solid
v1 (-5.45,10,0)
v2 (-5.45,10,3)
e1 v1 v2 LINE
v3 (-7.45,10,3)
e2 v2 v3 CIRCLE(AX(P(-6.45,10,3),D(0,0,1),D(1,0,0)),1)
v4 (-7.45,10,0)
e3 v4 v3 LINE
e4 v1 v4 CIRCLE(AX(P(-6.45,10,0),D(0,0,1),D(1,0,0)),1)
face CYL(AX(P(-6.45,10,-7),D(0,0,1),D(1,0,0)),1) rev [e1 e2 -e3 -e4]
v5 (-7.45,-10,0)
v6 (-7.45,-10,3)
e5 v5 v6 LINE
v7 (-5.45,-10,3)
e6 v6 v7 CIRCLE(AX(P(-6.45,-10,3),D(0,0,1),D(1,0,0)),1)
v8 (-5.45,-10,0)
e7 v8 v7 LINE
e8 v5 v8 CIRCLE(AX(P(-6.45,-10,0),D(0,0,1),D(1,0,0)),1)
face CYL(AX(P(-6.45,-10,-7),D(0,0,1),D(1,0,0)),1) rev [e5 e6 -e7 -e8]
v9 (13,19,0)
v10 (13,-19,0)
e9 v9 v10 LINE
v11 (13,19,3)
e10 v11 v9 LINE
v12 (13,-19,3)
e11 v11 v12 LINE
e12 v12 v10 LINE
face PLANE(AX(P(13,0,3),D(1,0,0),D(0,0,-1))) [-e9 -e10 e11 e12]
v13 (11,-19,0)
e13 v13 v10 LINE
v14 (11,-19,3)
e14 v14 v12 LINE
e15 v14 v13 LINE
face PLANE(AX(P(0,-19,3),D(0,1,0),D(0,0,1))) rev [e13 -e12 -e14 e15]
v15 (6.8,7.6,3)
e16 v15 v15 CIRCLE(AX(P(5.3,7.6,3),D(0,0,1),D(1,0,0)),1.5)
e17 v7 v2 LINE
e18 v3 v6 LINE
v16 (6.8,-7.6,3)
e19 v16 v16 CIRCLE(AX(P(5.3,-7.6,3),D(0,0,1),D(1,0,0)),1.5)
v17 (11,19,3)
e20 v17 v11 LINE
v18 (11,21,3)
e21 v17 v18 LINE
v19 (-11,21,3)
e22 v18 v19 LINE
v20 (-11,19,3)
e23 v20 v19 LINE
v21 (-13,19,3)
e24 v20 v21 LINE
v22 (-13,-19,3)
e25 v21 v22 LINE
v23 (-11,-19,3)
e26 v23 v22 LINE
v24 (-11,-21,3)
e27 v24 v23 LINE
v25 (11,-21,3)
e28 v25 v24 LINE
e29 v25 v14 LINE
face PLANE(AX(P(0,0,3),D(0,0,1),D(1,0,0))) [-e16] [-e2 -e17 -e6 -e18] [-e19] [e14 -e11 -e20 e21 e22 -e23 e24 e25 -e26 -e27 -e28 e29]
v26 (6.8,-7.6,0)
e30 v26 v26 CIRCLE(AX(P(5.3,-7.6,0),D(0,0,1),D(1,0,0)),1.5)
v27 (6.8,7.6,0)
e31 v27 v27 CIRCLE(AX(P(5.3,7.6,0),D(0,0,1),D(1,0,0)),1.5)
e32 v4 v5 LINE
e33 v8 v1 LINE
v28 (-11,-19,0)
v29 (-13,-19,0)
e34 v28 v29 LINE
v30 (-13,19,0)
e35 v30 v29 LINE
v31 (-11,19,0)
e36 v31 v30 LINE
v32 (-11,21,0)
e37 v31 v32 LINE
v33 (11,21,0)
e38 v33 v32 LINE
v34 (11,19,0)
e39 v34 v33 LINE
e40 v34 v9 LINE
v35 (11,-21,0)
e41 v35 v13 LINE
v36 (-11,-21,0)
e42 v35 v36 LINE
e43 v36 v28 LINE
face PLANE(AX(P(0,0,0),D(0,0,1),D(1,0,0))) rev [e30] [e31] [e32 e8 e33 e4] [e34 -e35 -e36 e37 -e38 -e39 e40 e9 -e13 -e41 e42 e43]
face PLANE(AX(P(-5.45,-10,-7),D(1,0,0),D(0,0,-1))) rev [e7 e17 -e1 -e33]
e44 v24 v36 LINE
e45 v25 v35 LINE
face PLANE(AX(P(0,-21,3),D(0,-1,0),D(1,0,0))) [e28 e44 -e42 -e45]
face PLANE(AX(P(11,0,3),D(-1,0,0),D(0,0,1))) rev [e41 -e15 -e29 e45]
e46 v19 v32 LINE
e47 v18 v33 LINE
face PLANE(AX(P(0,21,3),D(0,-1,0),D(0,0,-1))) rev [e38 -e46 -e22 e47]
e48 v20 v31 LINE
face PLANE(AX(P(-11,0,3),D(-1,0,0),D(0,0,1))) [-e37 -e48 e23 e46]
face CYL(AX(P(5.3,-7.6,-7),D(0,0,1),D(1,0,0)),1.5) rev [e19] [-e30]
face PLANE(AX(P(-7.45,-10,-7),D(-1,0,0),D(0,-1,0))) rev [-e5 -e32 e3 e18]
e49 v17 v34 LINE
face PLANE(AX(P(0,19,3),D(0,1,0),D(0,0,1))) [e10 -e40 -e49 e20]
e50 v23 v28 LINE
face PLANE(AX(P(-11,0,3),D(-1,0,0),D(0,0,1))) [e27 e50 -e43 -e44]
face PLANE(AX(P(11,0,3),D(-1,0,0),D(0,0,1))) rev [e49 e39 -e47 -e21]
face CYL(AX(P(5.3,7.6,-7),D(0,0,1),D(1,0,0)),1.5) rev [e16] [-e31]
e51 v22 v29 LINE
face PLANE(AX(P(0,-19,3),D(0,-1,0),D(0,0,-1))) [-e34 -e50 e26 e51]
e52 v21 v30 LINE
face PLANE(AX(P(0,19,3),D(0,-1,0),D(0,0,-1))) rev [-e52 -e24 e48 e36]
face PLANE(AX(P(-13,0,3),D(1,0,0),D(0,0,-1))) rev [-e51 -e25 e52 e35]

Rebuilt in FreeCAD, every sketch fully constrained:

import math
import FreeCAD as App
import Part
import Sketcher
Q = App.Units.Quantity

doc = App.newDocument("Part")
body = doc.addObject("PartDesign::Body", "Body")

# Sketch on XY plane
sketch1 = body.newObject("Sketcher::SketchObject", "Sketch")
sketch1.AttachmentSupport = (doc.getObject("XY_Plane"), [""])
sketch1.MapMode = "FlatFace"
sketch1.addGeometry(Part.LineSegment(App.Vector(-11, -19, 0), App.Vector(-11, -21, 0)), False)
sketch1.addGeometry(Part.LineSegment(App.Vector(-11, -21, 0), App.Vector(11, -21, 0)), False)
sketch1.addGeometry(Part.LineSegment(App.Vector(11, -21, 0), App.Vector(11, -19, 0)), False)
sketch1.addGeometry(Part.LineSegment(App.Vector(11, -19, 0), App.Vector(13, -19, 0)), False)
sketch1.addGeometry(Part.LineSegment(App.Vector(13, -19, 0), App.Vector(13, 19, 0)), False)
sketch1.addGeometry(Part.LineSegment(App.Vector(13, 19, 0), App.Vector(11, 19, 0)), False)
sketch1.addGeometry(Part.LineSegment(App.Vector(11, 19, 0), App.Vector(11, 21, 0)), False)
sketch1.addGeometry(Part.LineSegment(App.Vector(11, 21, 0), App.Vector(-11, 21, 0)), False)
sketch1.addGeometry(Part.LineSegment(App.Vector(-11, 21, 0), App.Vector(-11, 19, 0)), False)
sketch1.addGeometry(Part.LineSegment(App.Vector(-11, 19, 0), App.Vector(-13, 19, 0)), False)
sketch1.addGeometry(Part.LineSegment(App.Vector(-13, 19, 0), App.Vector(-13, -19, 0)), False)
sketch1.addGeometry(Part.LineSegment(App.Vector(-13, -19, 0), App.Vector(-11, -19, 0)), False)
sketch1.addConstraint(Sketcher.Constraint("Coincident", 0, 2, 1, 1))
sketch1.addConstraint(Sketcher.Constraint("Coincident", 1, 2, 2, 1))
sketch1.addConstraint(Sketcher.Constraint("Coincident", 2, 2, 3, 1))
sketch1.addConstraint(Sketcher.Constraint("Coincident", 3, 2, 4, 1))
sketch1.addConstraint(Sketcher.Constraint("Coincident", 4, 2, 5, 1))
sketch1.addConstraint(Sketcher.Constraint("Coincident", 5, 2, 6, 1))
sketch1.addConstraint(Sketcher.Constraint("Coincident", 6, 2, 7, 1))
sketch1.addConstraint(Sketcher.Constraint("Coincident", 7, 2, 8, 1))
sketch1.addConstraint(Sketcher.Constraint("Coincident", 8, 2, 9, 1))
sketch1.addConstraint(Sketcher.Constraint("Coincident", 9, 2, 10, 1))
sketch1.addConstraint(Sketcher.Constraint("Coincident", 10, 2, 11, 1))
sketch1.addConstraint(Sketcher.Constraint("Coincident", 11, 2, 0, 1))
sketch1.addConstraint(Sketcher.Constraint("Vertical", 0))
sketch1.addConstraint(Sketcher.Constraint("Horizontal", 1))
sketch1.addConstraint(Sketcher.Constraint("Vertical", 2))
sketch1.addConstraint(Sketcher.Constraint("Horizontal", 3))
sketch1.addConstraint(Sketcher.Constraint("Vertical", 4))
sketch1.addConstraint(Sketcher.Constraint("Horizontal", 5))
sketch1.addConstraint(Sketcher.Constraint("Vertical", 6))
sketch1.addConstraint(Sketcher.Constraint("Horizontal", 7))
sketch1.addConstraint(Sketcher.Constraint("Vertical", 8))
sketch1.addConstraint(Sketcher.Constraint("Horizontal", 9))
sketch1.addConstraint(Sketcher.Constraint("Vertical", 10))
sketch1.addConstraint(Sketcher.Constraint("Horizontal", 11))
sketch1.addConstraint(Sketcher.Constraint("Symmetric", 0, 2, 6, 2, -1, 1))
sketch1.addConstraint(Sketcher.Constraint("Symmetric", 2, 2, 8, 2, -1, 1))
sketch1.addConstraint(Sketcher.Constraint("Symmetric", 4, 2, 10, 2, -1, 1))
sketch1.addConstraint(Sketcher.Constraint("Symmetric", 5, 2, 8, 2, -2))
sketch1.addConstraint(Sketcher.Constraint("Equal", 11, 0))
sketch1.addConstraint(Sketcher.Constraint("DistanceX", 1, 1, 1, 2, Q("22 mm")))
sketch1.addConstraint(Sketcher.Constraint("DistanceX", 3, 1, 3, 2, Q("2 mm")))
sketch1.addConstraint(Sketcher.Constraint("DistanceY", 4, 1, 4, 2, Q("38 mm")))
pad1 = body.newObject("PartDesign::Pad", "Pad")
pad1.Profile = sketch1
pad1.Length = 3

# Sketch on XY plane
sketch2 = body.newObject("Sketcher::SketchObject", "Sketch001")
sketch2.AttachmentSupport = (doc.getObject("XY_Plane"), [""])
sketch2.MapMode = "FlatFace"
sketch2.AttachmentOffset = App.Placement(App.Vector(0, 0, 3), App.Rotation())
sketch2.addGeometry(Part.Circle(App.Vector(5.3, -7.6, 0), App.Vector(0, 0, 1), 1.5), False)
sketch2.addGeometry(Part.Circle(App.Vector(5.3, 7.6, 0), App.Vector(0, 0, 1), 1.5), False)
sketch2.addGeometry(Part.LineSegment(App.Vector(-7.5, 10, 0), App.Vector(-7.5, -10, 0)), False)
sketch2.addGeometry(Part.ArcOfCircle(Part.Circle(App.Vector(-6.5, -10, 0), App.Vector(0, 0, 1), 1), math.radians(180), math.radians(360)), False)
sketch2.addGeometry(Part.LineSegment(App.Vector(-5.5, -10, 0), App.Vector(-5.5, 10, 0)), False)
sketch2.addGeometry(Part.ArcOfCircle(Part.Circle(App.Vector(-6.5, 10, 0), App.Vector(0, 0, 1), 1), math.radians(0), math.radians(180)), False)
sketch2.addConstraint(Sketcher.Constraint("Tangent", 2, 2, 3, 1))
sketch2.addConstraint(Sketcher.Constraint("Tangent", 3, 2, 4, 1))
sketch2.addConstraint(Sketcher.Constraint("Tangent", 4, 2, 5, 1))
sketch2.addConstraint(Sketcher.Constraint("Tangent", 5, 2, 2, 1))
sketch2.addConstraint(Sketcher.Constraint("Vertical", 2))
sketch2.addConstraint(Sketcher.Constraint("Vertical", 4))
sketch2.addConstraint(Sketcher.Constraint("Equal", 0, 1))
sketch2.addConstraint(Sketcher.Constraint("Symmetric", 0, 3, 1, 3, -1))
sketch2.addConstraint(Sketcher.Constraint("Diameter", 0, Q("3 mm")))
sketch2.addConstraint(Sketcher.Constraint("Radius", 3, Q("1 mm")))
sketch2.addConstraint(Sketcher.Constraint("DistanceY", 2, 2, 2, 1, Q("20 mm")))
sketch2.addConstraint(Sketcher.Constraint("DistanceY", 3, 3, -1, 1, Q("10 mm")))
sketch2.addConstraint(Sketcher.Constraint("DistanceX", -1, 1, 0, 3, Q("5.3 mm")))
sketch2.addConstraint(Sketcher.Constraint("DistanceY", 0, 3, -1, 1, Q("7.6 mm")))
sketch2.addConstraint(Sketcher.Constraint("DistanceX", 3, 3, -1, 1, Q("6.45 mm")))
pocket1 = body.newObject("PartDesign::Pocket", "Pocket")
pocket1.Profile = sketch2
pocket1.Length = 10

doc.recompute()
